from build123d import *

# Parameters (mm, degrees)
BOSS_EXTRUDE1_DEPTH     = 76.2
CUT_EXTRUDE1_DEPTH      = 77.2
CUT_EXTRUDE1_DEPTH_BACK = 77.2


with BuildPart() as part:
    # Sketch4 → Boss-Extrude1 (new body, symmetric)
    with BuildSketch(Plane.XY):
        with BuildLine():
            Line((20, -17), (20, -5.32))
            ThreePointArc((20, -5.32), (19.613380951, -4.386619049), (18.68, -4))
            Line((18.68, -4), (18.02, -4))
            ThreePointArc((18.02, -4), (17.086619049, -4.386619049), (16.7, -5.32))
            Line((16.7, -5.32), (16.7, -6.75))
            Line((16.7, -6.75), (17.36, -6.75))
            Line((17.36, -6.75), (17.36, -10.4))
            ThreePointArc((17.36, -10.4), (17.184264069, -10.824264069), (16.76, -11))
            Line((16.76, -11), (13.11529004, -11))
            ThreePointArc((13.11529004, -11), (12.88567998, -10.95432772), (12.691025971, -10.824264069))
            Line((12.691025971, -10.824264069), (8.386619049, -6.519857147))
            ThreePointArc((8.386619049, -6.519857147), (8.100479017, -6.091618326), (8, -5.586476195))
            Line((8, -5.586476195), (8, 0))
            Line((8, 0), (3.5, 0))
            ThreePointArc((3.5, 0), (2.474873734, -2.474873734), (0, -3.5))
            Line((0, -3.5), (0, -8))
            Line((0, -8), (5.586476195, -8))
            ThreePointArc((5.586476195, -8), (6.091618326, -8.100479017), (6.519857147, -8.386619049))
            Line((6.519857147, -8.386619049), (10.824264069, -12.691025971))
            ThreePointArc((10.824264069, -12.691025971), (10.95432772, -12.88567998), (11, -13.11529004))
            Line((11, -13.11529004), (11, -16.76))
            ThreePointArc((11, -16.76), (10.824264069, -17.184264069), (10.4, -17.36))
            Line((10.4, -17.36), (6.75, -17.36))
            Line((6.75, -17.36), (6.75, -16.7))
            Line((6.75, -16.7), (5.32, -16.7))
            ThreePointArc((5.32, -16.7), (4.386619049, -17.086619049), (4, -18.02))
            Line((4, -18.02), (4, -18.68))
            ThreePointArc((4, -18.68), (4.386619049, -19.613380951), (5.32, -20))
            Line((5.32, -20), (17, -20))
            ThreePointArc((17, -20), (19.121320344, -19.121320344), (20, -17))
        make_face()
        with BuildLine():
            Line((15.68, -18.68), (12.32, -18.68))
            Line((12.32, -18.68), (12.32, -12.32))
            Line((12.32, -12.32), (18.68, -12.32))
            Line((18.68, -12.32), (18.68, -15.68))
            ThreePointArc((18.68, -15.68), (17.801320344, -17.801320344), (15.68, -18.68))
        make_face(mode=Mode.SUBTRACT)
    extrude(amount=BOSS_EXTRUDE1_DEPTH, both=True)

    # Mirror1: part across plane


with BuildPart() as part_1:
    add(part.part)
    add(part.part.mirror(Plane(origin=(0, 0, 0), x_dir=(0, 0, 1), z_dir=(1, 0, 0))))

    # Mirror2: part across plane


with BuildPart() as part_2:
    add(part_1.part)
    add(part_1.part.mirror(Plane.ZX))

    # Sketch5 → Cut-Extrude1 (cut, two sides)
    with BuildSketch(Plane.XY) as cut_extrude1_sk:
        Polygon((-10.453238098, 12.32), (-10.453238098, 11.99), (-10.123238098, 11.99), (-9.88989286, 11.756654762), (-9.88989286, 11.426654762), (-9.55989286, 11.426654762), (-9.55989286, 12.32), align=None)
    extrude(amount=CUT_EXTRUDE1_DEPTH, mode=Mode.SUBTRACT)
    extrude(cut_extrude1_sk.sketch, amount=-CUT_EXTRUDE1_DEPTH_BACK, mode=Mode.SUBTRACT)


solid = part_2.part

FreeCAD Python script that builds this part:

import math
import FreeCAD as App
import Part
import Sketcher
from FreeCAD import Vector

doc = App.newDocument("Part")
body = doc.addObject("PartDesign::Body", "Body")

sketch1 = body.newObject("Sketcher::SketchObject", "Sketch")
sketch1.AttachmentSupport = (doc.getObject("XY_Plane"), [""])
sketch1.MapMode = "FlatFace"
sketch1.addGeometry([
    Part.LineSegment(Vector(20, -17, 0), Vector(20, -5.32, 0)),
    Part.ArcOfCircle(Part.Circle(Vector(18.68, -5.32, 0), Vector(0, 0, 1), 1.32), math.radians(0), math.radians(90)),
    Part.LineSegment(Vector(18.68, -4, 0), Vector(18.02, -4, 0)),
    Part.ArcOfCircle(Part.Circle(Vector(18.02, -5.32, 0), Vector(0, 0, 1), 1.32), math.radians(90), math.radians(180)),
    Part.LineSegment(Vector(16.7, -5.32, 0), Vector(16.7, -6.75, 0)),
    Part.LineSegment(Vector(16.7, -6.75, 0), Vector(17.36, -6.75, 0)),
    Part.LineSegment(Vector(17.36, -6.75, 0), Vector(17.36, -10.4, 0)),
    Part.ArcOfCircle(Part.Circle(Vector(16.76, -10.4, 0), Vector(0, 0, 1), 0.6), math.radians(-90), math.radians(0)),
    Part.LineSegment(Vector(16.76, -11, 0), Vector(13.12, -11, 0)),
    Part.ArcOfCircle(Part.Circle(Vector(13.12, -10.4, 0), Vector(0, 0, 1), 0.6), math.radians(-135), math.radians(-90)),
    Part.LineSegment(Vector(12.69, -10.82, 0), Vector(8.39, -6.52, 0)),
    Part.ArcOfCircle(Part.Circle(Vector(9.32, -5.59, 0), Vector(0, 0, 1), 1.32), math.radians(180), math.radians(225)),
    Part.LineSegment(Vector(8, -5.59, 0), Vector(8, 0, 0)),
    Part.LineSegment(Vector(8, 0, 0), Vector(3.5, 0, 0)),
    Part.ArcOfCircle(Part.Circle(Vector(0, 0, 0), Vector(0, 0, 1), 3.5), math.radians(-90), math.radians(0)),
    Part.LineSegment(Vector(0, -3.5, 0), Vector(0, -8, 0)),
    Part.LineSegment(Vector(0, -8, 0), Vector(5.59, -8, 0)),
    Part.ArcOfCircle(Part.Circle(Vector(5.59, -9.32, 0), Vector(0, 0, 1), 1.32), math.radians(45), math.radians(90)),
    Part.LineSegment(Vector(6.52, -8.39, 0), Vector(10.82, -12.69, 0)),
    Part.ArcOfCircle(Part.Circle(Vector(10.4, -13.12, 0), Vector(0, 0, 1), 0.6), math.radians(0), math.radians(45)),
    Part.LineSegment(Vector(11, -13.12, 0), Vector(11, -16.76, 0)),
    Part.ArcOfCircle(Part.Circle(Vector(10.4, -16.76, 0), Vector(0, 0, 1), 0.6), math.radians(-90), math.radians(0)),
    Part.LineSegment(Vector(10.4, -17.36, 0), Vector(6.75, -17.36, 0)),
    Part.LineSegment(Vector(6.75, -17.36, 0), Vector(6.75, -16.7, 0)),
    Part.LineSegment(Vector(6.75, -16.7, 0), Vector(5.32, -16.7, 0)),
    Part.ArcOfCircle(Part.Circle(Vector(5.32, -18.02, 0), Vector(0, 0, 1), 1.32), math.radians(90), math.radians(180)),
    Part.LineSegment(Vector(4, -18.02, 0), Vector(4, -18.68, 0)),
    Part.ArcOfCircle(Part.Circle(Vector(5.32, -18.68, 0), Vector(0, 0, 1), 1.32), math.radians(-180), math.radians(-90)),
    Part.LineSegment(Vector(5.32, -20, 0), Vector(17, -20, 0)),
    Part.ArcOfCircle(Part.Circle(Vector(17, -17, 0), Vector(0, 0, 1), 3), math.radians(-90), math.radians(0)),
    Part.ArcOfCircle(Part.Circle(Vector(15.68, -15.68, 0), Vector(0, 0, 1), 3), math.radians(-90), math.radians(0)),
    Part.LineSegment(Vector(15.68, -18.68, 0), Vector(12.32, -18.68, 0)),
    Part.LineSegment(Vector(12.32, -18.68, 0), Vector(12.32, -12.32, 0)),
    Part.LineSegment(Vector(12.32, -12.32, 0), Vector(18.68, -12.32, 0)),
    Part.LineSegment(Vector(18.68, -12.32, 0), Vector(18.68, -15.68, 0)),
], False)
sketch1.addConstraint([
    Sketcher.Constraint("Tangent", 0, 2, 1, 1),
    Sketcher.Constraint("Tangent", 1, 2, 2, 1),
    Sketcher.Constraint("Tangent", 2, 2, 3, 1),
    Sketcher.Constraint("Tangent", 3, 2, 4, 1),
    Sketcher.Constraint("Coincident", 4, 2, 5, 1),
    Sketcher.Constraint("Coincident", 5, 2, 6, 1),
    Sketcher.Constraint("Tangent", 6, 2, 7, 2),
    Sketcher.Constraint("Tangent", 7, 1, 8, 1),
    Sketcher.Constraint("Tangent", 8, 2, 9, 2),
    Sketcher.Constraint("Tangent", 9, 1, 10, 1),
    Sketcher.Constraint("Tangent", 10, 2, 11, 2),
    Sketcher.Constraint("Tangent", 11, 1, 12, 1),
    Sketcher.Constraint("Coincident", 12, 2, 13, 1),
    Sketcher.Constraint("Coincident", 13, 2, 14, 2),
    Sketcher.Constraint("Coincident", 14, 1, 15, 1),
    Sketcher.Constraint("Coincident", 15, 2, 16, 1),
    Sketcher.Constraint("Tangent", 16, 2, 17, 2),
    Sketcher.Constraint("Tangent", 17, 1, 18, 1),
    Sketcher.Constraint("Tangent", 18, 2, 19, 2),
    Sketcher.Constraint("Tangent", 19, 1, 20, 1),
    Sketcher.Constraint("Tangent", 20, 2, 21, 2),
    Sketcher.Constraint("Tangent", 21, 1, 22, 1),
    Sketcher.Constraint("Coincident", 22, 2, 23, 1),
    Sketcher.Constraint("Coincident", 23, 2, 24, 1),
    Sketcher.Constraint("Tangent", 24, 2, 25, 1),
    Sketcher.Constraint("Tangent", 25, 2, 26, 1),
    Sketcher.Constraint("Tangent", 26, 2, 27, 1),
    Sketcher.Constraint("Tangent", 27, 2, 28, 1),
    Sketcher.Constraint("Tangent", 28, 2, 29, 1),
    Sketcher.Constraint("Tangent", 29, 2, 0, 1),
    Sketcher.Constraint("Tangent", 30, 1, 31, 1),
    Sketcher.Constraint("Coincident", 31, 2, 32, 1),
    Sketcher.Constraint("Coincident", 32, 2, 33, 1),
    Sketcher.Constraint("Coincident", 33, 2, 34, 1),
    Sketcher.Constraint("Tangent", 34, 2, 30, 2),
    Sketcher.Constraint("Vertical", 0),
    Sketcher.Constraint("Horizontal", 2),
    Sketcher.Constraint("Vertical", 4),
    Sketcher.Constraint("Horizontal", 5),
    Sketcher.Constraint("Vertical", 6),
    Sketcher.Constraint("Horizontal", 8),
    Sketcher.Constraint("Vertical", 12),
    Sketcher.Constraint("Horizontal", 13),
    Sketcher.Constraint("Vertical", 15),
    Sketcher.Constraint("Horizontal", 16),
    Sketcher.Constraint("Vertical", 20),
    Sketcher.Constraint("Horizontal", 22),
    Sketcher.Constraint("Vertical", 23),
    Sketcher.Constraint("Horizontal", 24),
    Sketcher.Constraint("Vertical", 26),
    Sketcher.Constraint("Horizontal", 28),
    Sketcher.Constraint("Horizontal", 31),
    Sketcher.Constraint("Vertical", 32),
    Sketcher.Constraint("Horizontal", 33),
    Sketcher.Constraint("Vertical", 34),
    Sketcher.Constraint("Coincident", 14, 3, -1, 1),
    Sketcher.Constraint("Equal", 1, 3),
    Sketcher.Constraint("Equal", 7, 9),
    Sketcher.Constraint("Equal", 3, 11),
    Sketcher.Constraint("Equal", 11, 17),
    Sketcher.Constraint("Equal", 9, 19),
    Sketcher.Constraint("Equal", 19, 21),
    Sketcher.Constraint("Equal", 17, 25),
    Sketcher.Constraint("Equal", 25, 27),
    Sketcher.Constraint("Equal", 29, 30),
    Sketcher.Constraint("PointOnObject", 12, 2, -1),
    Sketcher.Constraint("PointOnObject", 14, 1, -2),
    Sketcher.Constraint("Parallel", 10, 18),
    Sketcher.Constraint("Horizontal", 26, 2, 30, 1),
    Sketcher.Constraint("Vertical", 1, 2, 33, 2),
    Sketcher.Constraint("Equal", 2, 5),
    Sketcher.Constraint("Equal", 28, 0),
    Sketcher.Constraint("Equal", 24, 4),
    Sketcher.Constraint("Equal", 22, 6),
    Sketcher.Constraint("Equal", 16, 12),
    Sketcher.Constraint("Equal", 13, 15),
    Sketcher.Constraint("Equal", 8, 20),
    Sketcher.Constraint("Equal", 5, 23),
    Sketcher.Constraint("Equal", 23, 26),
    Sketcher.Constraint("Equal", 33, 32),
    Sketcher.Constraint("Equal", 10, 18),
    Sketcher.Constraint("Radius", 29, 3.0),
    Sketcher.Constraint("Radius", 7, 0.6),
    Sketcher.Constraint("Radius", 14, 3.5),
    Sketcher.Constraint("Radius", 1, 1.32),
    Sketcher.Constraint("DistanceX", 13, 2, 13, 1, 4.5),
    Sketcher.Constraint("DistanceX", -1, 1, 29, 3, 17.0),
    Sketcher.Constraint("DistanceY", 1, 2, -1, 1, 4.0),
    Sketcher.Constraint("DistanceY", 7, 1, -1, 1, 11.0),
    Sketcher.Constraint("DistanceX", 2, 2, 2, 1, 0.66),
    Sketcher.Constraint("DistanceX", 22, 2, 22, 1, 3.65),
    Sketcher.Constraint("DistanceX", 31, 2, 31, 1, 3.36),
    Sketcher.Constraint("DistanceX", 8, 2, 8, 1, 3.64471),
])
pad1 = body.newObject("PartDesign::Pad", "Pad")
pad1.Profile = sketch1
pad1.Length = 152.4
pad1.Midplane = True
body2 = doc.addObject("PartDesign::Body", "Body001")
doc.recompute()

body2.BaseFeature = body
doc.recompute()

mirroring = doc.addObject("Part::Mirroring", "Mirroring")
mirroring.Source = body
mirroring.Base = Vector(0, 0, 0)
mirroring.Normal = Vector(1, 0, 0)
body3 = doc.addObject("PartDesign::Body", "Body002")
body3.BaseFeature = mirroring
boolean = body2.newObject("PartDesign::Boolean", "Boolean")
boolean.Type = "Fuse"
boolean.addObjects([body3])
doc.recompute()
body4 = doc.addObject("PartDesign::Body", "Body003")
doc.recompute()

body4.BaseFeature = body2
doc.recompute()

mirroring2 = doc.addObject("Part::Mirroring", "Mirroring001")
mirroring2.Source = body2
mirroring2.Base = Vector(0, 0, 0)
mirroring2.Normal = Vector(0, 1, 0)
body5 = doc.addObject("PartDesign::Body", "Body004")
body5.BaseFeature = mirroring2
boolean2 = body4.newObject("PartDesign::Boolean", "Boolean001")
boolean2.Type = "Fuse"
boolean2.addObjects([body5])
doc.recompute()

sketch2 = body4.newObject("Sketcher::SketchObject", "Sketch001")
sketch2.AttachmentSupport = (doc.getObject("XY_Plane003"), [""])
sketch2.MapMode = "FlatFace"
sketch2.addGeometry([
    Part.LineSegment(Vector(-10.45, 12.32, 0), Vector(-10.45, 11.99, 0)),
    Part.LineSegment(Vector(-10.45, 11.99, 0), Vector(-10.12, 11.99, 0)),
    Part.LineSegment(Vector(-10.12, 11.99, 0), Vector(-9.89, 11.76, 0)),
    Part.LineSegment(Vector(-9.89, 11.76, 0), Vector(-9.89, 11.43, 0)),
    Part.LineSegment(Vector(-9.89, 11.43, 0), Vector(-9.56, 11.43, 0)),
    Part.LineSegment(Vector(-9.56, 11.43, 0), Vector(-9.56, 12.32, 0)),
    Part.LineSegment(Vector(-9.56, 12.32, 0), Vector(-10.45, 12.32, 0)),
], False)
sketch2.addConstraint([
    Sketcher.Constraint("Coincident", 0, 2, 1, 1),
    Sketcher.Constraint("Coincident", 1, 2, 2, 1),
    Sketcher.Constraint("Coincident", 2, 2, 3, 1),
    Sketcher.Constraint("Coincident", 3, 2, 4, 1),
    Sketcher.Constraint("Coincident", 4, 2, 5, 1),
    Sketcher.Constraint("Coincident", 5, 2, 6, 1),
    Sketcher.Constraint("Coincident", 6, 2, 0, 1),
    Sketcher.Constraint("Vertical", 0),
    Sketcher.Constraint("Horizontal", 1),
    Sketcher.Constraint("Vertical", 3),
    Sketcher.Constraint("Horizontal", 4),
    Sketcher.Constraint("Vertical", 5),
    Sketcher.Constraint("Horizontal", 6),
    Sketcher.Constraint("Equal", 1, 4),
    Sketcher.Constraint("Equal", 4, 0),
    Sketcher.Constraint("Equal", 0, 3),
    Sketcher.Constraint("Equal", 6, 5),
    Sketcher.Constraint("DistanceX", 1, 1, 1, 2, 0.33),
    Sketcher.Constraint("Distance", 2, 0.33),
    Sketcher.Constraint("DistanceY", -1, 1, 0, 2, 11.99),
    Sketcher.Constraint("DistanceX", 0, 2, -1, 1, 10.453238),
])
pocket1 = body4.newObject("PartDesign::Pocket", "Pocket")
pocket1.Profile = sketch2
pocket1.Type = "ThroughAll"
pocket1.Midplane = True
mirroring.Visibility = False
mirroring2.Visibility = False

doc.recompute()
